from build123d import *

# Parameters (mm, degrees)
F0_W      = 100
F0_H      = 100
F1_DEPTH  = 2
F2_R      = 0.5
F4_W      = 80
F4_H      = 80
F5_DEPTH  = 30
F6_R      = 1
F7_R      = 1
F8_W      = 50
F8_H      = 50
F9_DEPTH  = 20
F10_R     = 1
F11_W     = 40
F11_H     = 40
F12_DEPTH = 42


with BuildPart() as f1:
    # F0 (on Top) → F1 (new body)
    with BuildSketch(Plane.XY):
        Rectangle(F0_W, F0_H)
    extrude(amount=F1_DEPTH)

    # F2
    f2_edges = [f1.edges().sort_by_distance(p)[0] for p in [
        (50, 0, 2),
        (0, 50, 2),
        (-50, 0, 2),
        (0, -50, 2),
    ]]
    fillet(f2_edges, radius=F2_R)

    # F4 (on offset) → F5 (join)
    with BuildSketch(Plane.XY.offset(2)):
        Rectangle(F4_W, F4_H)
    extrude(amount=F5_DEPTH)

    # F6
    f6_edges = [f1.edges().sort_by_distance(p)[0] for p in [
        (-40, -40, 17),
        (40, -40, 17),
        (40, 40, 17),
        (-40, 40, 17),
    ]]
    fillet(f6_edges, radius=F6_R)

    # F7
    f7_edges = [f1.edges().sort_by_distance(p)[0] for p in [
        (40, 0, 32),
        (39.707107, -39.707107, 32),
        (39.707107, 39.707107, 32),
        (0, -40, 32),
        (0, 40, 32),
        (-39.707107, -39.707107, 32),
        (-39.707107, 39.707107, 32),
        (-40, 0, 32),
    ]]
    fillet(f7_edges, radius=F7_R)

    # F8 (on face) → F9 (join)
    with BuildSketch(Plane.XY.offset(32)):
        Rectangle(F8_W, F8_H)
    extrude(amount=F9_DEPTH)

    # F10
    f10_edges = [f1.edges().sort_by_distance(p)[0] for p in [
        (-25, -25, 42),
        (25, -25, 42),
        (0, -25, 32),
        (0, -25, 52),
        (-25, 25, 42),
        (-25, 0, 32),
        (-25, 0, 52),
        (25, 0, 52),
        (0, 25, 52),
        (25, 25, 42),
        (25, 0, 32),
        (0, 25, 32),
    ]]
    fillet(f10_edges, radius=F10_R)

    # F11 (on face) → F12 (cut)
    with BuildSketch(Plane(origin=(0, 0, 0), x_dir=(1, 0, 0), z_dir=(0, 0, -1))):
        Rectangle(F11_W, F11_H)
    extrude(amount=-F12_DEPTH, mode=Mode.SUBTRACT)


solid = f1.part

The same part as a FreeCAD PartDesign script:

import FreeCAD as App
import Part
import Sketcher
from FreeCAD import Vector


def edges_at(feature, points):
    """Names of the edges that pass closest to the given points."""
    edges = feature.Shape.Edges
    near = lambda p: min(range(len(edges)), key=lambda i: edges[i].distToShape(Part.Vertex(*p))[0])
    return sorted({f"Edge{near(p) + 1}" for p in points})

doc = App.newDocument("Part")
body = doc.addObject("PartDesign::Body", "Body")

sketch1 = doc.addObject("Sketcher::SketchObject", "Sketch")
body.addObject(sketch1)
sketch1.AttachmentSupport = (doc.XY_Plane, [""])
sketch1.MapMode = "FlatFace"
sketch1.addGeometry(Part.LineSegment(Vector(-50, 50, 0), Vector(-50, -50, 0)), False)
sketch1.addGeometry(Part.LineSegment(Vector(-50, -50, 0), Vector(50, -50, 0)), False)
sketch1.addGeometry(Part.LineSegment(Vector(50, -50, 0), Vector(50, 50, 0)), False)
sketch1.addGeometry(Part.LineSegment(Vector(50, 50, 0), Vector(-50, 50, 0)), False)
sketch1.addConstraint(Sketcher.Constraint("Coincident", 0, 2, 1, 1))
sketch1.addConstraint(Sketcher.Constraint("Coincident", 1, 2, 2, 1))
sketch1.addConstraint(Sketcher.Constraint("Coincident", 2, 2, 3, 1))
sketch1.addConstraint(Sketcher.Constraint("Coincident", 3, 2, 0, 1))
sketch1.addConstraint(Sketcher.Constraint("Vertical", 0))
sketch1.addConstraint(Sketcher.Constraint("Horizontal", 1))
sketch1.addConstraint(Sketcher.Constraint("Vertical", 2))
sketch1.addConstraint(Sketcher.Constraint("Horizontal", 3))
sketch1.addConstraint(Sketcher.Constraint("Symmetric", 0, 2, 2, 2, -1, 1))
sketch1.addConstraint(Sketcher.Constraint("Equal", 3, 0))
sketch1.addConstraint(Sketcher.Constraint("DistanceX", 1, 1, 1, 2, 100.0))
pad1 = doc.addObject("PartDesign::Pad", "Pad")
body.addObject(pad1)
pad1.Profile = sketch1
pad1.Length = 2
doc.recompute()

fillet = doc.addObject("PartDesign::Fillet", "Fillet")
body.addObject(fillet)
fillet.Base = (pad1, edges_at(pad1, [
    (50, 0, 2),
    (0, 50, 2),
    (-50, 0, 2),
    (0, -50, 2),
]))
fillet.Radius = 0.5

sketch2 = doc.addObject("Sketcher::SketchObject", "Sketch001")
body.addObject(sketch2)
sketch2.AttachmentSupport = (doc.XY_Plane, [""])
sketch2.MapMode = "FlatFace"
sketch2.AttachmentOffset = App.Placement(Vector(0, 0, 2), App.Rotation())
sketch2.addGeometry(Part.LineSegment(Vector(-40, 40, 0), Vector(-40, -40, 0)), False)
sketch2.addGeometry(Part.LineSegment(Vector(-40, -40, 0), Vector(40, -40, 0)), False)
sketch2.addGeometry(Part.LineSegment(Vector(40, -40, 0), Vector(40, 40, 0)), False)
sketch2.addGeometry(Part.LineSegment(Vector(40, 40, 0), Vector(-40, 40, 0)), False)
sketch2.addConstraint(Sketcher.Constraint("Coincident", 0, 2, 1, 1))
sketch2.addConstraint(Sketcher.Constraint("Coincident", 1, 2, 2, 1))
sketch2.addConstraint(Sketcher.Constraint("Coincident", 2, 2, 3, 1))
sketch2.addConstraint(Sketcher.Constraint("Coincident", 3, 2, 0, 1))
sketch2.addConstraint(Sketcher.Constraint("Vertical", 0))
sketch2.addConstraint(Sketcher.Constraint("Horizontal", 1))
sketch2.addConstraint(Sketcher.Constraint("Vertical", 2))
sketch2.addConstraint(Sketcher.Constraint("Horizontal", 3))
sketch2.addConstraint(Sketcher.Constraint("Symmetric", 0, 2, 2, 2, -1, 1))
sketch2.addConstraint(Sketcher.Constraint("Equal", 3, 0))
sketch2.addConstraint(Sketcher.Constraint("DistanceX", 1, 1, 1, 2, 80.0))
pad2 = doc.addObject("PartDesign::Pad", "Pad001")
body.addObject(pad2)
pad2.Profile = sketch2
pad2.Length = 30
doc.recompute()

fillet2 = doc.addObject("PartDesign::Fillet", "Fillet001")
body.addObject(fillet2)
fillet2.Base = (pad2, edges_at(pad2, [
    (-40, -40, 17),
    (40, -40, 17),
    (40, 40, 17),
    (-40, 40, 17),
]))
fillet2.Radius = 1
doc.recompute()

fillet3 = doc.addObject("PartDesign::Fillet", "Fillet002")
body.addObject(fillet3)
fillet3.Base = (fillet2, edges_at(fillet2, [
    (40, 0, 32),
    (39.707, -39.707, 32),
    (39.707, 39.707, 32),
    (0, -40, 32),
    (0, 40, 32),
    (-39.707, -39.707, 32),
    (-39.707, 39.707, 32),
    (-40, 0, 32),
]))
fillet3.Radius = 1

sketch3 = doc.addObject("Sketcher::SketchObject", "Sketch002")
body.addObject(sketch3)
sketch3.AttachmentSupport = (doc.XY_Plane, [""])
sketch3.MapMode = "FlatFace"
sketch3.AttachmentOffset = App.Placement(Vector(0, 0, 32), App.Rotation())
sketch3.addGeometry(Part.LineSegment(Vector(-25, 25, 0), Vector(-25, -25, 0)), False)
sketch3.addGeometry(Part.LineSegment(Vector(-25, -25, 0), Vector(25, -25, 0)), False)
sketch3.addGeometry(Part.LineSegment(Vector(25, -25, 0), Vector(25, 25, 0)), False)
sketch3.addGeometry(Part.LineSegment(Vector(25, 25, 0), Vector(-25, 25, 0)), False)
sketch3.addConstraint(Sketcher.Constraint("Coincident", 0, 2, 1, 1))
sketch3.addConstraint(Sketcher.Constraint("Coincident", 1, 2, 2, 1))
sketch3.addConstraint(Sketcher.Constraint("Coincident", 2, 2, 3, 1))
sketch3.addConstraint(Sketcher.Constraint("Coincident", 3, 2, 0, 1))
sketch3.addConstraint(Sketcher.Constraint("Vertical", 0))
sketch3.addConstraint(Sketcher.Constraint("Horizontal", 1))
sketch3.addConstraint(Sketcher.Constraint("Vertical", 2))
sketch3.addConstraint(Sketcher.Constraint("Horizontal", 3))
sketch3.addConstraint(Sketcher.Constraint("Symmetric", 0, 2, 2, 2, -1, 1))
sketch3.addConstraint(Sketcher.Constraint("Equal", 3, 0))
sketch3.addConstraint(Sketcher.Constraint("DistanceX", 1, 1, 1, 2, 50.0))
pad3 = doc.addObject("PartDesign::Pad", "Pad002")
body.addObject(pad3)
pad3.Profile = sketch3
pad3.Length = 20
doc.recompute()

fillet4 = doc.addObject("PartDesign::Fillet", "Fillet003")
body.addObject(fillet4)
fillet4.Base = (pad3, edges_at(pad3, [
    (-25, -25, 42),
    (25, -25, 42),
    (0, -25, 32),
    (0, -25, 52),
    (-25, 25, 42),
    (-25, 0, 32),
    (-25, 0, 52),
    (25, 0, 52),
    (0, 25, 52),
    (25, 25, 42),
    (25, 0, 32),
    (0, 25, 32),
]))
fillet4.Radius = 1

sketch4 = doc.addObject("Sketcher::SketchObject", "Sketch003")
body.addObject(sketch4)
sketch4.AttachmentSupport = (doc.XY_Plane, [""])
sketch4.MapMode = "FlatFace"
sketch4.addGeometry(Part.LineSegment(Vector(-20, -20, 0), Vector(-20, 20, 0)), False)
sketch4.addGeometry(Part.LineSegment(Vector(-20, 20, 0), Vector(20, 20, 0)), False)
sketch4.addGeometry(Part.LineSegment(Vector(20, 20, 0), Vector(20, -20, 0)), False)
sketch4.addGeometry(Part.LineSegment(Vector(20, -20, 0), Vector(-20, -20, 0)), False)
sketch4.addConstraint(Sketcher.Constraint("Coincident", 0, 2, 1, 1))
sketch4.addConstraint(Sketcher.Constraint("Coincident", 1, 2, 2, 1))
sketch4.addConstraint(Sketcher.Constraint("Coincident", 2, 2, 3, 1))
sketch4.addConstraint(Sketcher.Constraint("Coincident", 3, 2, 0, 1))
sketch4.addConstraint(Sketcher.Constraint("Vertical", 0))
sketch4.addConstraint(Sketcher.Constraint("Horizontal", 1))
sketch4.addConstraint(Sketcher.Constraint("Vertical", 2))
sketch4.addConstraint(Sketcher.Constraint("Horizontal", 3))
sketch4.addConstraint(Sketcher.Constraint("Symmetric", 0, 2, 2, 2, -1, 1))
sketch4.addConstraint(Sketcher.Constraint("Equal", 3, 0))
sketch4.addConstraint(Sketcher.Constraint("DistanceX", 1, 1, 1, 2, 40.0))
pocket1 = doc.addObject("PartDesign::Pocket", "Pocket")
body.addObject(pocket1)
pocket1.Profile = sketch4
pocket1.Length = 42
pocket1.Reversed = True

doc.recompute()
